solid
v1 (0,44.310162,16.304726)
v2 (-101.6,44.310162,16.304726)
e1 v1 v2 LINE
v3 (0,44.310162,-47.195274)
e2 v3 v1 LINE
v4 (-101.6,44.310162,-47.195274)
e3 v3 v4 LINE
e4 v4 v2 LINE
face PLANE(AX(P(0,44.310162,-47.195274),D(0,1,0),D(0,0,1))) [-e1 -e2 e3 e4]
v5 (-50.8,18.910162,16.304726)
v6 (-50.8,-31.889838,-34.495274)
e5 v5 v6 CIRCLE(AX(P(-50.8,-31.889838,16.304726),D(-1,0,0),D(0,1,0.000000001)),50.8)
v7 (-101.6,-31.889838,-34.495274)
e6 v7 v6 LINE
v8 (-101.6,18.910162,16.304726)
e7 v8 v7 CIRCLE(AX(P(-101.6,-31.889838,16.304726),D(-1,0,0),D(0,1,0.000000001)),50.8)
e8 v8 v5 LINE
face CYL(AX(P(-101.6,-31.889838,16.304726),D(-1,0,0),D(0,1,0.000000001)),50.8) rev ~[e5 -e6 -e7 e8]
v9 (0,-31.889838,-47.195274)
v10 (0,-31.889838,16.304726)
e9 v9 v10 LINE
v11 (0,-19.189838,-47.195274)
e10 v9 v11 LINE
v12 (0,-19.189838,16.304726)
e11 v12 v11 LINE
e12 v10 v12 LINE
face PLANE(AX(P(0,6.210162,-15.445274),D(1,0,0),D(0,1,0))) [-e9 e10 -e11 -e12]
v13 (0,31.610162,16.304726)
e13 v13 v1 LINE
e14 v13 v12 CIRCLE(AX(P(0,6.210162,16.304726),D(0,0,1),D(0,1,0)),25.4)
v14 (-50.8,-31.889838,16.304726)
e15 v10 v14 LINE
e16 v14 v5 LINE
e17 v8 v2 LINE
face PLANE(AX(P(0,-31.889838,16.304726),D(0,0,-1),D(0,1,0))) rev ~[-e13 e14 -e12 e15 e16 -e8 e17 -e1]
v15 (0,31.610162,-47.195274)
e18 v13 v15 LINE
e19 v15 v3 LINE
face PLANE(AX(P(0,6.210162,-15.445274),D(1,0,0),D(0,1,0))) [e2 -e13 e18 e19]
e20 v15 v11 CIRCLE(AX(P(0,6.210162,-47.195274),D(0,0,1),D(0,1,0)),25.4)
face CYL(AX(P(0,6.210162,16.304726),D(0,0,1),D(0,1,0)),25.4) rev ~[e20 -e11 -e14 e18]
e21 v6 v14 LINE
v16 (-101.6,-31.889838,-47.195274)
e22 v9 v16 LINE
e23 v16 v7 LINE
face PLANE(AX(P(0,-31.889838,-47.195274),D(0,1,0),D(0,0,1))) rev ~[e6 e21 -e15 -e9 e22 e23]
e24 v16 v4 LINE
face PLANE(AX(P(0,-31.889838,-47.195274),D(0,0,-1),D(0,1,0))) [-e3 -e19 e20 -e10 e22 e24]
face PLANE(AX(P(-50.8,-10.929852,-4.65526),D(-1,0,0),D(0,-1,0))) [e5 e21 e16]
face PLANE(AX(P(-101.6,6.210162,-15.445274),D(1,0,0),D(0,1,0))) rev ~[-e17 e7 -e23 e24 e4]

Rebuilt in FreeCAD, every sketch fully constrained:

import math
import FreeCAD as App
import Part
import Sketcher

V = App.Vector
Q = App.Units.Quantity


def add_polygon(sketch, points):
    """Adds a closed chain of lines whose ends are joined by coincident constraints."""
    first, n = sketch.GeometryCount, len(points)
    for a, b in zip(points, points[1:] + points[:1]):
        sketch.addGeometry(Part.LineSegment(App.Vector(*a, 0), App.Vector(*b, 0)), False)
    for i in range(n):
        sketch.addConstraint(Sketcher.Constraint("Coincident", first + i, 2, first + (i + 1) % n, 1))

doc = App.newDocument("Part")
params = doc.addObject("Spreadsheet::Sheet", "Params")
for row, (alias, value) in enumerate([
    ("sketch1_width", "3 in"),
    ("sketch1_height", "2.5 in"),
    ("pad1_length", "4 in"),
    ("sketch2_radius", "1 in"),
    ("pocket1_length", "2.5 in"),
    ("sketch3_radius", "2 in"),
    ("pocket2_length", "2 in"),
], start=1):
    params.set(f"A{row}", alias)
    params.set(f"B{row}", "=" + value)
    params.setAlias(f"B{row}", alias)

body = doc.addObject("PartDesign::Body", "Body")

# Sketch on YZ plane
sketch1 = body.newObject("Sketcher::SketchObject", "Sketch")
sketch1.AttachmentSupport = (doc.getObject("YZ_Plane"), [""])
sketch1.MapMode = "FlatFace"
add_polygon(sketch1, [(-32, 16), (-32, -47), (44, -47), (44, 16)])  # lines 0-3
sketch1.addConstraint(Sketcher.Constraint("Vertical", 0))
sketch1.addConstraint(Sketcher.Constraint("Horizontal", 1))
sketch1.addConstraint(Sketcher.Constraint("Vertical", 2))
sketch1.addConstraint(Sketcher.Constraint("Horizontal", 3))
sketch1.addConstraint(Sketcher.Constraint("DistanceX", 1, 1, 1, 2, Q("3 in")))
sketch1.addConstraint(Sketcher.Constraint("DistanceY", 0, 2, 0, 1, Q("2.5 in")))
sketch1.addConstraint(Sketcher.Constraint("DistanceX", 0, 2, -1, 1, 31.889838))
sketch1.addConstraint(Sketcher.Constraint("DistanceY", 0, 2, -1, 1, 47.195274))
sketch1.setExpression("Constraints[8]", "Params.sketch1_width")
sketch1.setExpression("Constraints[9]", "Params.sketch1_height")
pad1 = body.newObject("PartDesign::Pad", "Pad")
pad1.Profile = sketch1
pad1.setExpression("Length", "Params.pad1_length")
pad1.Reversed = True

# Sketch on XY plane
sketch2 = body.newObject("Sketcher::SketchObject", "Sketch001")
sketch2.AttachmentSupport = (doc.getObject("XY_Plane"), [""])
sketch2.MapMode = "FlatFace"
sketch2.AttachmentOffset = App.Placement(V(0, 0, 16.304726), App.Rotation())
sketch2.addGeometry(Part.LineSegment(V(0, -19, 0), V(0, 32, 0)), False)
sketch2.addGeometry(Part.ArcOfCircle(Part.Circle(V(0, 6, 0), V(0, 0, 1), 25), math.radians(90), math.radians(270)), False)
sketch2.addConstraint(Sketcher.Constraint("Coincident", 0, 1, 1, 2))
sketch2.addConstraint(Sketcher.Constraint("Coincident", 1, 1, 0, 2))
sketch2.addConstraint(Sketcher.Constraint("Vertical", 0))
sketch2.addConstraint(Sketcher.Constraint("PointOnObject", 1, 3, -2))
sketch2.addConstraint(Sketcher.Constraint("PointOnObject", 0, 1, -2))
sketch2.addConstraint(Sketcher.Constraint("Radius", 1, Q("1 in")))
sketch2.addConstraint(Sketcher.Constraint("DistanceY", 0, 1, -1, 1, 19.189838))
sketch2.setExpression("Constraints[5]", "Params.sketch2_radius")
pocket1 = body.newObject("PartDesign::Pocket", "Pocket")
pocket1.Profile = sketch2
pocket1.setExpression("Length", "Params.pocket1_length")

# Sketch on YZ plane
sketch3 = body.newObject("Sketcher::SketchObject", "Sketch002")
sketch3.AttachmentSupport = (doc.getObject("YZ_Plane"), [""])
sketch3.MapMode = "FlatFace"
sketch3.AttachmentOffset = App.Placement(V(0, 0, -4 * 25.4), App.Rotation())
sketch3.addGeometry(Part.LineSegment(V(-32, 16, 0), V(19, 16, 0)), False)
sketch3.addGeometry(Part.ArcOfCircle(Part.Circle(V(-32, 16, 0), V(0, 0, 1), 51), math.radians(-90), math.radians(0)), False)
sketch3.addGeometry(Part.LineSegment(V(-32, -34, 0), V(-32, 16, 0)), False)
sketch3.addConstraint(Sketcher.Constraint("Coincident", 0, 2, 1, 2))
sketch3.addConstraint(Sketcher.Constraint("Coincident", 1, 1, 2, 1))
sketch3.addConstraint(Sketcher.Constraint("Coincident", 2, 2, 0, 1))
sketch3.addConstraint(Sketcher.Constraint("Horizontal", 0))
sketch3.addConstraint(Sketcher.Constraint("Vertical", 2))
sketch3.addConstraint(Sketcher.Constraint("Coincident", 2, 2, 1, 3))
sketch3.addConstraint(Sketcher.Constraint("Radius", 1, Q("2 in")))
sketch3.addConstraint(Sketcher.Constraint("DistanceX", -1, 1, 0, 2, 18.910162))
sketch3.addConstraint(Sketcher.Constraint("DistanceY", -1, 1, 1, 3, 16.304726))
sketch3.setExpression("Constraints[6]", "Params.sketch3_radius")
pocket2 = body.newObject("PartDesign::Pocket", "Pocket001")
pocket2.Profile = sketch3
pocket2.setExpression("Length", "Params.pocket2_length")
pocket2.Reversed = True

doc.recompute()
